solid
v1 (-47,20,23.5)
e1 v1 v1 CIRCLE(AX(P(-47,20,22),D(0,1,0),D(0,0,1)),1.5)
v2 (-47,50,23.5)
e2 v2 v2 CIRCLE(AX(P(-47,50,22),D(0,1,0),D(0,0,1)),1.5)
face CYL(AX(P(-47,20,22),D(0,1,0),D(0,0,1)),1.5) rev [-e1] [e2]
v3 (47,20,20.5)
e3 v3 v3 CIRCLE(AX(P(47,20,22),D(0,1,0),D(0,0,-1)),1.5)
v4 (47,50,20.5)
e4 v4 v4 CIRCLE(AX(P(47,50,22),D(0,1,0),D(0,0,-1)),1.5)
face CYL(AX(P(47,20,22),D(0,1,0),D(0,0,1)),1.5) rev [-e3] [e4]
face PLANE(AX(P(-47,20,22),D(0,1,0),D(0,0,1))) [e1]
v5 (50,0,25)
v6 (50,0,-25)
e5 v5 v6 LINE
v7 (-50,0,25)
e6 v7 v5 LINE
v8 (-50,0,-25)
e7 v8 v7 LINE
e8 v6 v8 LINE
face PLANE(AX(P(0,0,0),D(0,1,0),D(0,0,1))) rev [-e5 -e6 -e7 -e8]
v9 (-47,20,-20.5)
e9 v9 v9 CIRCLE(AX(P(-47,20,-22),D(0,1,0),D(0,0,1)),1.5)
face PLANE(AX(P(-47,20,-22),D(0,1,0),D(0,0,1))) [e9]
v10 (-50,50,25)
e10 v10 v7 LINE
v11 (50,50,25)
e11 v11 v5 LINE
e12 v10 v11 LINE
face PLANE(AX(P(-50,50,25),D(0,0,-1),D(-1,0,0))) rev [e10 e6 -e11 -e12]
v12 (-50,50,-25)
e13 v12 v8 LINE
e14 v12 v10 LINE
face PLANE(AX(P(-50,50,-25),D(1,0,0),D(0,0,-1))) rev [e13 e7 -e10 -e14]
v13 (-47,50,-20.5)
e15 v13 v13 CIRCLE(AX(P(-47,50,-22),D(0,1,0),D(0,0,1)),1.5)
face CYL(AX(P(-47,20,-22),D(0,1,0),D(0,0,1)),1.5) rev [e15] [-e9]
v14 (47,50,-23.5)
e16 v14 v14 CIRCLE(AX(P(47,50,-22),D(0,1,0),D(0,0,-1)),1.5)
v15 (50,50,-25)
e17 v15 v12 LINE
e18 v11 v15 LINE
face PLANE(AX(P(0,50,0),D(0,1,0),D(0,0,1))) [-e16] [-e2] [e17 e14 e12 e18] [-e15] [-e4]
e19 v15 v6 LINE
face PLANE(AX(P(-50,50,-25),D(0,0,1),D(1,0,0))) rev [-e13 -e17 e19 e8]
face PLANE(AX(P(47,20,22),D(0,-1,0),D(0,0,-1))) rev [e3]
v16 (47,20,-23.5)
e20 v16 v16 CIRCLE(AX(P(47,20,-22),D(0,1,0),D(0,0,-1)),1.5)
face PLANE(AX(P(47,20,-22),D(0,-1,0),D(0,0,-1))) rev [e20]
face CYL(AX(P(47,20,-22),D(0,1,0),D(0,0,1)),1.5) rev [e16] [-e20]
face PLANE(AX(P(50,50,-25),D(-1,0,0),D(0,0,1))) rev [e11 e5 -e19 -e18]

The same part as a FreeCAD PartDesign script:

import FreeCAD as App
import Part
import Sketcher


def add_polygon(sketch, points):
    """Adds a closed chain of lines whose ends are joined by coincident constraints."""
    first, n = sketch.GeometryCount, len(points)
    for a, b in zip(points, points[1:] + points[:1]):
        sketch.addGeometry(Part.LineSegment(App.Vector(*a, 0), App.Vector(*b, 0)), False)
    for i in range(n):
        sketch.addConstraint(Sketcher.Constraint("Coincident", first + i, 2, first + (i + 1) % n, 1))

doc = App.newDocument("Part")
body = doc.addObject("PartDesign::Body", "Body")

# Sketch on XZ plane
sketch1 = body.newObject("Sketcher::SketchObject", "Sketch")
sketch1.AttachmentSupport = (doc.getObject("XZ_Plane"), [""])
sketch1.MapMode = "FlatFace"
add_polygon(sketch1, [(-50, -25), (-50, 25), (50, 25), (50, -25)])  # lines 0-3
sketch1.addConstraint(Sketcher.Constraint("Vertical", 0))
sketch1.addConstraint(Sketcher.Constraint("Horizontal", 1))
sketch1.addConstraint(Sketcher.Constraint("Vertical", 2))
sketch1.addConstraint(Sketcher.Constraint("Horizontal", 3))
sketch1.addConstraint(Sketcher.Constraint("Symmetric", 0, 2, 2, 2, -1, 1))
sketch1.addConstraint(Sketcher.Constraint("DistanceX", 1, 1, 1, 2, 100.0))
sketch1.addConstraint(Sketcher.Constraint("DistanceY", 0, 1, 0, 2, 50.0))
pad1 = body.newObject("PartDesign::Pad", "Pad")
pad1.Profile = sketch1
pad1.Length = 50
pad1.Reversed = True

# Sketch on XZ plane
sketch2 = body.newObject("Sketcher::SketchObject", "Sketch001")
sketch2.AttachmentSupport = (doc.getObject("XZ_Plane"), [""])
sketch2.MapMode = "FlatFace"
sketch2.AttachmentOffset = App.Placement(App.Vector(0, 0, -50), App.Rotation())
sketch2.addGeometry(Part.Circle(App.Vector(-47, -22, 0), App.Vector(0, 0, 1), 1.5), False)
sketch2.addGeometry(Part.Circle(App.Vector(-47, 22, 0), App.Vector(0, 0, 1), 1.5), False)
sketch2.addGeometry(Part.Circle(App.Vector(47, 22, 0), App.Vector(0, 0, 1), 1.5), False)
sketch2.addGeometry(Part.Circle(App.Vector(47, -22, 0), App.Vector(0, 0, 1), 1.5), False)
sketch2.addConstraint(Sketcher.Constraint("Equal", 0, 1))
sketch2.addConstraint(Sketcher.Constraint("Equal", 1, 2))
sketch2.addConstraint(Sketcher.Constraint("Equal", 2, 3))
sketch2.addConstraint(Sketcher.Constraint("Symmetric", 0, 3, 2, 3, -1, 1))
sketch2.addConstraint(Sketcher.Constraint("Symmetric", 1, 3, 3, 3, -1, 1))
sketch2.addConstraint(Sketcher.Constraint("Symmetric", 1, 3, 2, 3, -2))
sketch2.addConstraint(Sketcher.Constraint("Diameter", 0, 3.0))
sketch2.addConstraint(Sketcher.Constraint("DistanceX", 0, 3, -1, 1, 47.0))
sketch2.addConstraint(Sketcher.Constraint("DistanceY", 0, 3, -1, 1, 22.0))
pocket1 = body.newObject("PartDesign::Pocket", "Pocket")
pocket1.Profile = sketch2
pocket1.Length = 30
pocket1.Reversed = True

doc.recompute()
